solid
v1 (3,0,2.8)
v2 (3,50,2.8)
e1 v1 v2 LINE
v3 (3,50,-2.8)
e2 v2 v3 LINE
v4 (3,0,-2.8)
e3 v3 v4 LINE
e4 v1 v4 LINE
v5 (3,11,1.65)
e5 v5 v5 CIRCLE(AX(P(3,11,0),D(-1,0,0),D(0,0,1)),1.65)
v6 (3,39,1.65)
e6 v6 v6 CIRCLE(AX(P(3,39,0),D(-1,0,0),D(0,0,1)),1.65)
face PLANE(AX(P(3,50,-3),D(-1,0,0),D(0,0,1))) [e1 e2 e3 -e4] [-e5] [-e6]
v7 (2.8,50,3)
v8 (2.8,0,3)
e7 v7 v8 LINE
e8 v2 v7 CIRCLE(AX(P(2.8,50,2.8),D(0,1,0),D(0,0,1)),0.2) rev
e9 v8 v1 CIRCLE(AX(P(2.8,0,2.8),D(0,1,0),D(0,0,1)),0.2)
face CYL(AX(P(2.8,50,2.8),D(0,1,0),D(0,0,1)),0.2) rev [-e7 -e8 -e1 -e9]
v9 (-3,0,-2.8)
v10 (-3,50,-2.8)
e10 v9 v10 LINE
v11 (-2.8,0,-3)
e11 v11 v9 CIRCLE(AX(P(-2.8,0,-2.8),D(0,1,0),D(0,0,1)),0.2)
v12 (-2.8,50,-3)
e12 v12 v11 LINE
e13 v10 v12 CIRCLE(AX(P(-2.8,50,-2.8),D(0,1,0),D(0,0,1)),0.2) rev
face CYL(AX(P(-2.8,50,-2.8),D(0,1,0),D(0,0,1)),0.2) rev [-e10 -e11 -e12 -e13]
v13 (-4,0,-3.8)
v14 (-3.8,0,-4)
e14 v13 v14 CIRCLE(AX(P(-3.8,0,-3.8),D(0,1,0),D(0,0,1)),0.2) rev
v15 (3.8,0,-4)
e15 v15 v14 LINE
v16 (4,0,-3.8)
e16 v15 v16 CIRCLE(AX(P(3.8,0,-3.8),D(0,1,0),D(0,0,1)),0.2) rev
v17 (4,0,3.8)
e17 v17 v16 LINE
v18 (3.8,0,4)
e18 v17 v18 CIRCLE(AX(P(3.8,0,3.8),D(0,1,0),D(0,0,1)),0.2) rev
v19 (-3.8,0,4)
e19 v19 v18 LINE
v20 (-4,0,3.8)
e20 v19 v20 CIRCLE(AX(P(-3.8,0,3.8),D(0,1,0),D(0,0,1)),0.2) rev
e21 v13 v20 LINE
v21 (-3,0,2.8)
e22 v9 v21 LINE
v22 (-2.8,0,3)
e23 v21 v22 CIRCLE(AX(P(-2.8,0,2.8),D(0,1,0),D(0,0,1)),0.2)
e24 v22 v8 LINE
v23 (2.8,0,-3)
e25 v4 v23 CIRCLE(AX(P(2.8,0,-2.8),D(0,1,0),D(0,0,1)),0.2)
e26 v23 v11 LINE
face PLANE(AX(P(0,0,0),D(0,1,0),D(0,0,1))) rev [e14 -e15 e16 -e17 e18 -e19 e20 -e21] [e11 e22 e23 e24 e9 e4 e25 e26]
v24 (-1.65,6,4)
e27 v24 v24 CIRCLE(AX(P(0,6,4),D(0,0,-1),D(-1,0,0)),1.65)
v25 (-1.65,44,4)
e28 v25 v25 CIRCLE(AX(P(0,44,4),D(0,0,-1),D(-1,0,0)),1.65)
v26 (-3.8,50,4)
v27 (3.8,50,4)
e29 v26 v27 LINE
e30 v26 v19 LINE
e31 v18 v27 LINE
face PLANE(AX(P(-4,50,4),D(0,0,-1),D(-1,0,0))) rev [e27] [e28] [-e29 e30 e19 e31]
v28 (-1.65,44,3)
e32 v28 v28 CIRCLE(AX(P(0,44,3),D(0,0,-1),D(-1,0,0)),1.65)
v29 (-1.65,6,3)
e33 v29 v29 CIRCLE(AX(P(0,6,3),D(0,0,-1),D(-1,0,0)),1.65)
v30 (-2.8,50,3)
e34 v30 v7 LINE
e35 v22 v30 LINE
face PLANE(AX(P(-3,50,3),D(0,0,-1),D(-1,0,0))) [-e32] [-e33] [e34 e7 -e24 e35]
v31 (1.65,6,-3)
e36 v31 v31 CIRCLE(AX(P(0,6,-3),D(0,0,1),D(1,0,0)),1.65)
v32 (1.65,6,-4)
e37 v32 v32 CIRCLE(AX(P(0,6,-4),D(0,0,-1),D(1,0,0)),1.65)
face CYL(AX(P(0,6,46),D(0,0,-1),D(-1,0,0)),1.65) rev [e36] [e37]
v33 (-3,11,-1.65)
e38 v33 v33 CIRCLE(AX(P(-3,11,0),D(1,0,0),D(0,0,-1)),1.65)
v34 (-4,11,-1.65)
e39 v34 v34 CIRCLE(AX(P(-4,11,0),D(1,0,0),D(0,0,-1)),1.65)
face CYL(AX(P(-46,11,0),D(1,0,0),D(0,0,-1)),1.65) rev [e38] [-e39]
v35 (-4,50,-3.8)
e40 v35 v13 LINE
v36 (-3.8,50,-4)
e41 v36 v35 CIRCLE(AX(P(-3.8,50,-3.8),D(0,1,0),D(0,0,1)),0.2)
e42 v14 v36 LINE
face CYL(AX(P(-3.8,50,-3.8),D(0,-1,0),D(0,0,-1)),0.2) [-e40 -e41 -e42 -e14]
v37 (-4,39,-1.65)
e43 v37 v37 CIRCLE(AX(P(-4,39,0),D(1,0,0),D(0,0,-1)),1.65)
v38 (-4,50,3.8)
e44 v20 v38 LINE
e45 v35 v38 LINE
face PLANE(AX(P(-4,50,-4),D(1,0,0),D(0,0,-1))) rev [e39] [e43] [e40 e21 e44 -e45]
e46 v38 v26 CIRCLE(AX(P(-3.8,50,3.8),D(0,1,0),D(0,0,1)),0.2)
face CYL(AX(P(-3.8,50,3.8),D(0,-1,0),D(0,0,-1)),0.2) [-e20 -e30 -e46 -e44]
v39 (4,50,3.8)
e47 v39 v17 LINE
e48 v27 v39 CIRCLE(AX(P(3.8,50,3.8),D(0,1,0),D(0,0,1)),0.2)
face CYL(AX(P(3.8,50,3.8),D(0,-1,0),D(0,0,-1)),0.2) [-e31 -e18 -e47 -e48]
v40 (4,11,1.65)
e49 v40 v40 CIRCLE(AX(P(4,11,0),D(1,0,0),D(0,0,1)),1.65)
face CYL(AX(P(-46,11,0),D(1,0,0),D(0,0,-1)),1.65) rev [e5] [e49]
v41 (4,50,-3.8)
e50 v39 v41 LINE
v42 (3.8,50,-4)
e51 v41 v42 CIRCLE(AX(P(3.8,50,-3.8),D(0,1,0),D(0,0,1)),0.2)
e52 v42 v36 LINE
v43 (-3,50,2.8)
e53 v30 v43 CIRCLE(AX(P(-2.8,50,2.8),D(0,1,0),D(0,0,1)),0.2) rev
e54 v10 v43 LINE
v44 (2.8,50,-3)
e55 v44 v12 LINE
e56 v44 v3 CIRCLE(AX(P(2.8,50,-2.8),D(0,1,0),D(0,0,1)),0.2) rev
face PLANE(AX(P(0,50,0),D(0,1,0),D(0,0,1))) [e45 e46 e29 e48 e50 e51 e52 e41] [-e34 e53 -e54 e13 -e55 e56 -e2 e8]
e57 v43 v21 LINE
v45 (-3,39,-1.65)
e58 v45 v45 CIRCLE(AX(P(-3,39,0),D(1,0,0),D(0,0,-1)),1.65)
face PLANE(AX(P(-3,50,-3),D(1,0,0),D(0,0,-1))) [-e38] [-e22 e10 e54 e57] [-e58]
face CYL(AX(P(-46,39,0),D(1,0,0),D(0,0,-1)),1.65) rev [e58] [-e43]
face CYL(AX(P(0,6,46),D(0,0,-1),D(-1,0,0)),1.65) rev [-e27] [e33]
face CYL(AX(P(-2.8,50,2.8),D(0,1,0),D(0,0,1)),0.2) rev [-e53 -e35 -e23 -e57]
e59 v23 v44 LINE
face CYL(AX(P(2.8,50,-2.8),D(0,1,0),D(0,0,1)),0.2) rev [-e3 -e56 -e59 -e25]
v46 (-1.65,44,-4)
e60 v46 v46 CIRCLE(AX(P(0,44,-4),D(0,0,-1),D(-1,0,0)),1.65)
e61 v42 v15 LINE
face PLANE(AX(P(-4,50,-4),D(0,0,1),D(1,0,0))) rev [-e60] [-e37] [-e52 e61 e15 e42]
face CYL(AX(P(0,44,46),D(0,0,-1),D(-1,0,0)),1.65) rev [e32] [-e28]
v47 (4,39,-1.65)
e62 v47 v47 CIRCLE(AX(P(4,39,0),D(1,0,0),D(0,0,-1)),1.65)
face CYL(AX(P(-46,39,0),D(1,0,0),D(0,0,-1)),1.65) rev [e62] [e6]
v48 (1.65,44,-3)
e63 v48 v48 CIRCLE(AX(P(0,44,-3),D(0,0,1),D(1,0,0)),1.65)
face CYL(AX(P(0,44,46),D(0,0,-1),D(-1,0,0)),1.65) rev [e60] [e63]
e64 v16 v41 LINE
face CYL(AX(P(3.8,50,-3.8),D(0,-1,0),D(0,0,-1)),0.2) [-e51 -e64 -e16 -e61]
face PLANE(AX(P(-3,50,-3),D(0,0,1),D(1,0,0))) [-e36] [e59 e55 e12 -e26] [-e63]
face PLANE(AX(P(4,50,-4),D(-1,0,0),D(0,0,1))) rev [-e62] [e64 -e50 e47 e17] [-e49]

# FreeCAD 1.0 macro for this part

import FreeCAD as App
import Part
import Sketcher
from FreeCAD import Vector


def edges_at(feature, points):
    """Names of the edges that pass closest to the given points."""
    edges = feature.Shape.Edges
    near = lambda p: min(range(len(edges)), key=lambda i: edges[i].distToShape(Part.Vertex(*p))[0])
    return sorted({f"Edge{near(p) + 1}" for p in points})


def add_polygon(sketch, points):
    """Adds a closed chain of lines whose ends are joined by coincident constraints."""
    first, n = sketch.GeometryCount, len(points)
    for a, b in zip(points, points[1:] + points[:1]):
        sketch.addGeometry(Part.LineSegment(App.Vector(*a, 0), App.Vector(*b, 0)), False)
    for i in range(n):
        sketch.addConstraint(Sketcher.Constraint("Coincident", first + i, 2, first + (i + 1) % n, 1))

doc = App.newDocument("Part")
body = doc.addObject("PartDesign::Body", "Body")

sketch1 = body.newObject("Sketcher::SketchObject", "Sketch")
sketch1.AttachmentSupport = (doc.getObject("XZ_Plane"), [""])
sketch1.MapMode = "FlatFace"
add_polygon(sketch1, [(-4, -4), (-4, 4), (4, 4), (4, -4)])
add_polygon(sketch1, [(3, 3), (-3, 3), (-3, -3), (3, -3)])
sketch1.addConstraint([
    Sketcher.Constraint("Vertical", 0),
    Sketcher.Constraint("Horizontal", 1),
    Sketcher.Constraint("Vertical", 2),
    Sketcher.Constraint("Horizontal", 3),
    Sketcher.Constraint("Horizontal", 4),
    Sketcher.Constraint("Vertical", 5),
    Sketcher.Constraint("Horizontal", 6),
    Sketcher.Constraint("Vertical", 7),
    Sketcher.Constraint("Symmetric", 0, 2, 2, 2, -1, 1),
    Sketcher.Constraint("Symmetric", 4, 2, 6, 2, -1, 1),
    Sketcher.Constraint("Equal", 3, 0),
    Sketcher.Constraint("Equal", 6, 5),
    Sketcher.Constraint("DistanceX", 1, 1, 1, 2, 8.0),
    Sketcher.Constraint("DistanceX", 4, 2, 4, 1, 6.0),
])
pad1 = body.newObject("PartDesign::Pad", "Pad")
pad1.Profile = sketch1
pad1.Length = 50
pad1.Reversed = True
doc.recompute()

fillet = body.newObject("PartDesign::Fillet", "Fillet")
fillet.Base = (pad1, edges_at(pad1, [
    (3, 25, 3),
    (3, 25, -3),
    (-3, 25, -3),
    (-3, 25, 3),
]))
fillet.Radius = 0.2
doc.recompute()

fillet2 = body.newObject("PartDesign::Fillet", "Fillet001")
fillet2.Base = (fillet, edges_at(fillet, [
    (4, 25, 4),
    (-4, 25, 4),
    (-4, 25, -4),
    (4, 25, -4),
]))
fillet2.Radius = 0.2

sketch2 = body.newObject("Sketcher::SketchObject", "Sketch001")
sketch2.AttachmentSupport = (doc.getObject("YZ_Plane"), [""])
sketch2.MapMode = "FlatFace"
sketch2.AttachmentOffset = App.Placement(Vector(0, 0, 4), App.Rotation())
sketch2.addGeometry([
    Part.Circle(Vector(39, 0, 0), Vector(0, 0, 1), 1.65),
    Part.Circle(Vector(11, 0, 0), Vector(0, 0, 1), 1.65),
], False)
sketch2.addConstraint([
    Sketcher.Constraint("Equal", 0, 1),
    Sketcher.Constraint("PointOnObject", 0, 3, -1),
    Sketcher.Constraint("PointOnObject", 1, 3, -1),
    Sketcher.Constraint("Diameter", 0, 3.3),
    Sketcher.Constraint("DistanceX", -1, 1, 0, 3, 39.0),
    Sketcher.Constraint("DistanceX", -1, 1, 1, 3, 11.0),
])
pocket1 = body.newObject("PartDesign::Pocket", "Pocket")
pocket1.Profile = sketch2
pocket1.Length = 50

sketch3 = body.newObject("Sketcher::SketchObject", "Sketch002")
sketch3.AttachmentSupport = (doc.getObject("XY_Plane"), [""])
sketch3.MapMode = "FlatFace"
sketch3.AttachmentOffset = App.Placement(Vector(0, 0, -4), App.Rotation())
sketch3.addGeometry([
    Part.Circle(Vector(0, 44, 0), Vector(0, 0, 1), 1.65),
    Part.Circle(Vector(0, 6, 0), Vector(0, 0, 1), 1.65),
], False)
sketch3.addConstraint([
    Sketcher.Constraint("Equal", 0, 1),
    Sketcher.Constraint("PointOnObject", 0, 3, -2),
    Sketcher.Constraint("PointOnObject", 1, 3, -2),
    Sketcher.Constraint("Diameter", 0, 3.3),
    Sketcher.Constraint("DistanceY", -1, 1, 0, 3, 44.0),
    Sketcher.Constraint("DistanceY", -1, 1, 1, 3, 6.0),
])
pocket2 = body.newObject("PartDesign::Pocket", "Pocket001")
pocket2.Profile = sketch3
pocket2.Length = 50
pocket2.Reversed = True

doc.recompute()
